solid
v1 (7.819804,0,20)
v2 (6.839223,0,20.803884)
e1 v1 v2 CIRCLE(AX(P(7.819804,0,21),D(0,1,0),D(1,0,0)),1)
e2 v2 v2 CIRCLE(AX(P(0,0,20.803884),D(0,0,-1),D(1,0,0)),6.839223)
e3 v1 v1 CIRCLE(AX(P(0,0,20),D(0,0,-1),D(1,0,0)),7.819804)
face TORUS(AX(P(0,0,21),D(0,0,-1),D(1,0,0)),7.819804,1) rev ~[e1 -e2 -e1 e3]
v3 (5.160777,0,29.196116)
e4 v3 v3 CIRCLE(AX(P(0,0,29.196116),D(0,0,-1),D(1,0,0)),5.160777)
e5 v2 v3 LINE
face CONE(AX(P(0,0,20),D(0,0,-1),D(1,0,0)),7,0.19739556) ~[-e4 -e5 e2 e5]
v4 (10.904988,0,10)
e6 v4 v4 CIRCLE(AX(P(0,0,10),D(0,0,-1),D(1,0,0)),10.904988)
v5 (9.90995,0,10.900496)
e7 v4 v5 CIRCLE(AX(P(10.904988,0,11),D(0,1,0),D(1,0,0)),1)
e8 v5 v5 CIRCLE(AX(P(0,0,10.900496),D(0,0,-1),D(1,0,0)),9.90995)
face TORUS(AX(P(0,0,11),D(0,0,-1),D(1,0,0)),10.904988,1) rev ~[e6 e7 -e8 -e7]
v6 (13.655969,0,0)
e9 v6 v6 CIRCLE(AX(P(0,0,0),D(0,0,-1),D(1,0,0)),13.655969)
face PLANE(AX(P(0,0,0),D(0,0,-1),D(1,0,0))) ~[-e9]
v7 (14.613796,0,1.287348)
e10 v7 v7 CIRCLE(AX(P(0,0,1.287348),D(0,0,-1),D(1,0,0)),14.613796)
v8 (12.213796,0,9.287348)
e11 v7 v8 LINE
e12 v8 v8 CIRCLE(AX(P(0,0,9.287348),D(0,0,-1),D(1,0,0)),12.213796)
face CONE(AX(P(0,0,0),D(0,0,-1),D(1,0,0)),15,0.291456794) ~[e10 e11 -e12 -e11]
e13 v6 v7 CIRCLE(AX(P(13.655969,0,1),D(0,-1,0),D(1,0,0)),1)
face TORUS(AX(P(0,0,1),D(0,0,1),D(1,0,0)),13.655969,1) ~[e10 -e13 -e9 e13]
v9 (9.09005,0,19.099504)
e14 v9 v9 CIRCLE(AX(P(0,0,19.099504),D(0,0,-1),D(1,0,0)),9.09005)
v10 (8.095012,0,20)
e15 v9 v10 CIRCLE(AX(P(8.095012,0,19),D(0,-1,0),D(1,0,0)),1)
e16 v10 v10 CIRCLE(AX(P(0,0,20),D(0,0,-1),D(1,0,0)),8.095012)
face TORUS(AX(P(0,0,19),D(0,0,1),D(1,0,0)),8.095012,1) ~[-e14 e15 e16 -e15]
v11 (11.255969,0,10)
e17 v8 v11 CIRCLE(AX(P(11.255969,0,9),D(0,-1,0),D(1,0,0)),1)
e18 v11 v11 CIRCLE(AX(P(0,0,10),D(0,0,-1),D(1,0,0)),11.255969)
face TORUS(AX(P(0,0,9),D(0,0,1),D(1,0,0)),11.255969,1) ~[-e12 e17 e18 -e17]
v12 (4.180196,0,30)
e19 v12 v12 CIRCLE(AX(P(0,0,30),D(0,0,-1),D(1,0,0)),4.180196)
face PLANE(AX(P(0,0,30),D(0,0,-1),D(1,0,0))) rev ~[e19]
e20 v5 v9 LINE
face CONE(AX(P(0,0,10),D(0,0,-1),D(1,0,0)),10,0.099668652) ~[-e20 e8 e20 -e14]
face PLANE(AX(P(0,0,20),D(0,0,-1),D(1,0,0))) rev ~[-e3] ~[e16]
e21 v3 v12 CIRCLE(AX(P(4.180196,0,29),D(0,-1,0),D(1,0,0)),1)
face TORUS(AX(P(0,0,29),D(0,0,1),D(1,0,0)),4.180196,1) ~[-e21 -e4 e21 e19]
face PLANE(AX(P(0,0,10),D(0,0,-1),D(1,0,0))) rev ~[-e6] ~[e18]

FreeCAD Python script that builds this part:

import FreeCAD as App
import Part
import Sketcher

V = App.Vector
Q = App.Units.Quantity


def edges_at(feature, points):
    """Names of the edges that pass closest to the given points."""
    edges = feature.Shape.Edges
    near = lambda p: min(range(len(edges)), key=lambda i: edges[i].distToShape(Part.Vertex(*p))[0])
    return sorted({f"Edge{near(p) + 1}" for p in points})

doc = App.newDocument("Part")
params = doc.addObject("Spreadsheet::Sheet", "Params")
for row, (alias, value) in enumerate([
    ("sketch1_width", "15 mm"),
    ("sketch1_width2", "2 mm"),
    ("sketch1_width3", "5 mm"),
    ("sketch1_height", "30 mm"),
    ("revolution_angle", "360 deg"),
    ("fillet_radius", "1 mm"),
], start=1):
    params.set(f"A{row}", alias)
    params.set(f"B{row}", "=" + value)
    params.setAlias(f"B{row}", alias)

body = doc.addObject("PartDesign::Body", "Body")

# Sketch on XZ plane
sketch1 = body.newObject("Sketcher::SketchObject", "Sketch")
sketch1.AttachmentSupport = (doc.getObject("XZ_Plane"), [""])
sketch1.MapMode = "FlatFace"
sketch1.addGeometry(Part.LineSegment(V(0, 0, 0), V(15, 0, 0)), False)
sketch1.addGeometry(Part.LineSegment(V(15, 0, 0), V(12, 10, 0)), False)
sketch1.addGeometry(Part.LineSegment(V(12, 10, 0), V(10, 10, 0)), False)
sketch1.addGeometry(Part.LineSegment(V(10, 10, 0), V(9, 20, 0)), False)
sketch1.addGeometry(Part.LineSegment(V(9, 20, 0), V(7, 20, 0)), False)
sketch1.addGeometry(Part.LineSegment(V(7, 20, 0), V(5, 30, 0)), False)
sketch1.addGeometry(Part.LineSegment(V(5, 30, 0), V(0, 30, 0)), False)
sketch1.addGeometry(Part.LineSegment(V(0, 30, 0), V(0, 0, 0)), False)
sketch1.addConstraint(Sketcher.Constraint("Coincident", 0, 2, 1, 1))
sketch1.addConstraint(Sketcher.Constraint("Coincident", 1, 2, 2, 1))
sketch1.addConstraint(Sketcher.Constraint("Coincident", 2, 2, 3, 1))
sketch1.addConstraint(Sketcher.Constraint("Coincident", 3, 2, 4, 1))
sketch1.addConstraint(Sketcher.Constraint("Coincident", 4, 2, 5, 1))
sketch1.addConstraint(Sketcher.Constraint("Coincident", 5, 2, 6, 1))
sketch1.addConstraint(Sketcher.Constraint("Coincident", 6, 2, 7, 1))
sketch1.addConstraint(Sketcher.Constraint("Coincident", 7, 2, 0, 1))
sketch1.addConstraint(Sketcher.Constraint("Horizontal", 0))
sketch1.addConstraint(Sketcher.Constraint("Horizontal", 2))
sketch1.addConstraint(Sketcher.Constraint("Horizontal", 4))
sketch1.addConstraint(Sketcher.Constraint("Horizontal", 6))
sketch1.addConstraint(Sketcher.Constraint("Vertical", 7))
sketch1.addConstraint(Sketcher.Constraint("Coincident", 7, 2, -1, 1))
sketch1.addConstraint(Sketcher.Constraint("Equal", 2, 4))
sketch1.addConstraint(Sketcher.Constraint("DistanceX", 0, 1, 0, 2, Q("15 mm")))
sketch1.addConstraint(Sketcher.Constraint("DistanceX", 2, 2, 2, 1, Q("2 mm")))
sketch1.addConstraint(Sketcher.Constraint("DistanceX", 6, 2, 6, 1, Q("5 mm")))
sketch1.addConstraint(Sketcher.Constraint("DistanceY", 7, 2, 7, 1, Q("30 mm")))
sketch1.addConstraint(Sketcher.Constraint("DistanceX", -1, 1, 1, 2, Q("12 mm")))
sketch1.addConstraint(Sketcher.Constraint("DistanceY", -1, 1, 1, 2, Q("10 mm")))
sketch1.addConstraint(Sketcher.Constraint("DistanceX", -1, 1, 3, 2, Q("9 mm")))
sketch1.addConstraint(Sketcher.Constraint("DistanceY", -1, 1, 3, 2, Q("20 mm")))
sketch1.setExpression("Constraints[15]", "Params.sketch1_width")
sketch1.setExpression("Constraints[16]", "Params.sketch1_width2")
sketch1.setExpression("Constraints[17]", "Params.sketch1_width3")
sketch1.setExpression("Constraints[18]", "Params.sketch1_height")
revolution = body.newObject("PartDesign::Revolution", "Revolution")
revolution.Profile = sketch1
revolution.ReferenceAxis = (sketch1, ["V_Axis"])
revolution.setExpression("Angle", "Params.revolution_angle")
doc.recompute()

fillet = body.newObject("PartDesign::Fillet", "Fillet")
fillet.Base = (revolution, edges_at(revolution, [
    (-12, 0, 10),
    (-10, 0, 10),
    (-9, 0, 20),
    (-15, 0, 0),
    (-7, 0, 20),
    (-5, 0, 30),
]))
fillet.setExpression("Radius", "Params.fillet_radius")

doc.recompute()
